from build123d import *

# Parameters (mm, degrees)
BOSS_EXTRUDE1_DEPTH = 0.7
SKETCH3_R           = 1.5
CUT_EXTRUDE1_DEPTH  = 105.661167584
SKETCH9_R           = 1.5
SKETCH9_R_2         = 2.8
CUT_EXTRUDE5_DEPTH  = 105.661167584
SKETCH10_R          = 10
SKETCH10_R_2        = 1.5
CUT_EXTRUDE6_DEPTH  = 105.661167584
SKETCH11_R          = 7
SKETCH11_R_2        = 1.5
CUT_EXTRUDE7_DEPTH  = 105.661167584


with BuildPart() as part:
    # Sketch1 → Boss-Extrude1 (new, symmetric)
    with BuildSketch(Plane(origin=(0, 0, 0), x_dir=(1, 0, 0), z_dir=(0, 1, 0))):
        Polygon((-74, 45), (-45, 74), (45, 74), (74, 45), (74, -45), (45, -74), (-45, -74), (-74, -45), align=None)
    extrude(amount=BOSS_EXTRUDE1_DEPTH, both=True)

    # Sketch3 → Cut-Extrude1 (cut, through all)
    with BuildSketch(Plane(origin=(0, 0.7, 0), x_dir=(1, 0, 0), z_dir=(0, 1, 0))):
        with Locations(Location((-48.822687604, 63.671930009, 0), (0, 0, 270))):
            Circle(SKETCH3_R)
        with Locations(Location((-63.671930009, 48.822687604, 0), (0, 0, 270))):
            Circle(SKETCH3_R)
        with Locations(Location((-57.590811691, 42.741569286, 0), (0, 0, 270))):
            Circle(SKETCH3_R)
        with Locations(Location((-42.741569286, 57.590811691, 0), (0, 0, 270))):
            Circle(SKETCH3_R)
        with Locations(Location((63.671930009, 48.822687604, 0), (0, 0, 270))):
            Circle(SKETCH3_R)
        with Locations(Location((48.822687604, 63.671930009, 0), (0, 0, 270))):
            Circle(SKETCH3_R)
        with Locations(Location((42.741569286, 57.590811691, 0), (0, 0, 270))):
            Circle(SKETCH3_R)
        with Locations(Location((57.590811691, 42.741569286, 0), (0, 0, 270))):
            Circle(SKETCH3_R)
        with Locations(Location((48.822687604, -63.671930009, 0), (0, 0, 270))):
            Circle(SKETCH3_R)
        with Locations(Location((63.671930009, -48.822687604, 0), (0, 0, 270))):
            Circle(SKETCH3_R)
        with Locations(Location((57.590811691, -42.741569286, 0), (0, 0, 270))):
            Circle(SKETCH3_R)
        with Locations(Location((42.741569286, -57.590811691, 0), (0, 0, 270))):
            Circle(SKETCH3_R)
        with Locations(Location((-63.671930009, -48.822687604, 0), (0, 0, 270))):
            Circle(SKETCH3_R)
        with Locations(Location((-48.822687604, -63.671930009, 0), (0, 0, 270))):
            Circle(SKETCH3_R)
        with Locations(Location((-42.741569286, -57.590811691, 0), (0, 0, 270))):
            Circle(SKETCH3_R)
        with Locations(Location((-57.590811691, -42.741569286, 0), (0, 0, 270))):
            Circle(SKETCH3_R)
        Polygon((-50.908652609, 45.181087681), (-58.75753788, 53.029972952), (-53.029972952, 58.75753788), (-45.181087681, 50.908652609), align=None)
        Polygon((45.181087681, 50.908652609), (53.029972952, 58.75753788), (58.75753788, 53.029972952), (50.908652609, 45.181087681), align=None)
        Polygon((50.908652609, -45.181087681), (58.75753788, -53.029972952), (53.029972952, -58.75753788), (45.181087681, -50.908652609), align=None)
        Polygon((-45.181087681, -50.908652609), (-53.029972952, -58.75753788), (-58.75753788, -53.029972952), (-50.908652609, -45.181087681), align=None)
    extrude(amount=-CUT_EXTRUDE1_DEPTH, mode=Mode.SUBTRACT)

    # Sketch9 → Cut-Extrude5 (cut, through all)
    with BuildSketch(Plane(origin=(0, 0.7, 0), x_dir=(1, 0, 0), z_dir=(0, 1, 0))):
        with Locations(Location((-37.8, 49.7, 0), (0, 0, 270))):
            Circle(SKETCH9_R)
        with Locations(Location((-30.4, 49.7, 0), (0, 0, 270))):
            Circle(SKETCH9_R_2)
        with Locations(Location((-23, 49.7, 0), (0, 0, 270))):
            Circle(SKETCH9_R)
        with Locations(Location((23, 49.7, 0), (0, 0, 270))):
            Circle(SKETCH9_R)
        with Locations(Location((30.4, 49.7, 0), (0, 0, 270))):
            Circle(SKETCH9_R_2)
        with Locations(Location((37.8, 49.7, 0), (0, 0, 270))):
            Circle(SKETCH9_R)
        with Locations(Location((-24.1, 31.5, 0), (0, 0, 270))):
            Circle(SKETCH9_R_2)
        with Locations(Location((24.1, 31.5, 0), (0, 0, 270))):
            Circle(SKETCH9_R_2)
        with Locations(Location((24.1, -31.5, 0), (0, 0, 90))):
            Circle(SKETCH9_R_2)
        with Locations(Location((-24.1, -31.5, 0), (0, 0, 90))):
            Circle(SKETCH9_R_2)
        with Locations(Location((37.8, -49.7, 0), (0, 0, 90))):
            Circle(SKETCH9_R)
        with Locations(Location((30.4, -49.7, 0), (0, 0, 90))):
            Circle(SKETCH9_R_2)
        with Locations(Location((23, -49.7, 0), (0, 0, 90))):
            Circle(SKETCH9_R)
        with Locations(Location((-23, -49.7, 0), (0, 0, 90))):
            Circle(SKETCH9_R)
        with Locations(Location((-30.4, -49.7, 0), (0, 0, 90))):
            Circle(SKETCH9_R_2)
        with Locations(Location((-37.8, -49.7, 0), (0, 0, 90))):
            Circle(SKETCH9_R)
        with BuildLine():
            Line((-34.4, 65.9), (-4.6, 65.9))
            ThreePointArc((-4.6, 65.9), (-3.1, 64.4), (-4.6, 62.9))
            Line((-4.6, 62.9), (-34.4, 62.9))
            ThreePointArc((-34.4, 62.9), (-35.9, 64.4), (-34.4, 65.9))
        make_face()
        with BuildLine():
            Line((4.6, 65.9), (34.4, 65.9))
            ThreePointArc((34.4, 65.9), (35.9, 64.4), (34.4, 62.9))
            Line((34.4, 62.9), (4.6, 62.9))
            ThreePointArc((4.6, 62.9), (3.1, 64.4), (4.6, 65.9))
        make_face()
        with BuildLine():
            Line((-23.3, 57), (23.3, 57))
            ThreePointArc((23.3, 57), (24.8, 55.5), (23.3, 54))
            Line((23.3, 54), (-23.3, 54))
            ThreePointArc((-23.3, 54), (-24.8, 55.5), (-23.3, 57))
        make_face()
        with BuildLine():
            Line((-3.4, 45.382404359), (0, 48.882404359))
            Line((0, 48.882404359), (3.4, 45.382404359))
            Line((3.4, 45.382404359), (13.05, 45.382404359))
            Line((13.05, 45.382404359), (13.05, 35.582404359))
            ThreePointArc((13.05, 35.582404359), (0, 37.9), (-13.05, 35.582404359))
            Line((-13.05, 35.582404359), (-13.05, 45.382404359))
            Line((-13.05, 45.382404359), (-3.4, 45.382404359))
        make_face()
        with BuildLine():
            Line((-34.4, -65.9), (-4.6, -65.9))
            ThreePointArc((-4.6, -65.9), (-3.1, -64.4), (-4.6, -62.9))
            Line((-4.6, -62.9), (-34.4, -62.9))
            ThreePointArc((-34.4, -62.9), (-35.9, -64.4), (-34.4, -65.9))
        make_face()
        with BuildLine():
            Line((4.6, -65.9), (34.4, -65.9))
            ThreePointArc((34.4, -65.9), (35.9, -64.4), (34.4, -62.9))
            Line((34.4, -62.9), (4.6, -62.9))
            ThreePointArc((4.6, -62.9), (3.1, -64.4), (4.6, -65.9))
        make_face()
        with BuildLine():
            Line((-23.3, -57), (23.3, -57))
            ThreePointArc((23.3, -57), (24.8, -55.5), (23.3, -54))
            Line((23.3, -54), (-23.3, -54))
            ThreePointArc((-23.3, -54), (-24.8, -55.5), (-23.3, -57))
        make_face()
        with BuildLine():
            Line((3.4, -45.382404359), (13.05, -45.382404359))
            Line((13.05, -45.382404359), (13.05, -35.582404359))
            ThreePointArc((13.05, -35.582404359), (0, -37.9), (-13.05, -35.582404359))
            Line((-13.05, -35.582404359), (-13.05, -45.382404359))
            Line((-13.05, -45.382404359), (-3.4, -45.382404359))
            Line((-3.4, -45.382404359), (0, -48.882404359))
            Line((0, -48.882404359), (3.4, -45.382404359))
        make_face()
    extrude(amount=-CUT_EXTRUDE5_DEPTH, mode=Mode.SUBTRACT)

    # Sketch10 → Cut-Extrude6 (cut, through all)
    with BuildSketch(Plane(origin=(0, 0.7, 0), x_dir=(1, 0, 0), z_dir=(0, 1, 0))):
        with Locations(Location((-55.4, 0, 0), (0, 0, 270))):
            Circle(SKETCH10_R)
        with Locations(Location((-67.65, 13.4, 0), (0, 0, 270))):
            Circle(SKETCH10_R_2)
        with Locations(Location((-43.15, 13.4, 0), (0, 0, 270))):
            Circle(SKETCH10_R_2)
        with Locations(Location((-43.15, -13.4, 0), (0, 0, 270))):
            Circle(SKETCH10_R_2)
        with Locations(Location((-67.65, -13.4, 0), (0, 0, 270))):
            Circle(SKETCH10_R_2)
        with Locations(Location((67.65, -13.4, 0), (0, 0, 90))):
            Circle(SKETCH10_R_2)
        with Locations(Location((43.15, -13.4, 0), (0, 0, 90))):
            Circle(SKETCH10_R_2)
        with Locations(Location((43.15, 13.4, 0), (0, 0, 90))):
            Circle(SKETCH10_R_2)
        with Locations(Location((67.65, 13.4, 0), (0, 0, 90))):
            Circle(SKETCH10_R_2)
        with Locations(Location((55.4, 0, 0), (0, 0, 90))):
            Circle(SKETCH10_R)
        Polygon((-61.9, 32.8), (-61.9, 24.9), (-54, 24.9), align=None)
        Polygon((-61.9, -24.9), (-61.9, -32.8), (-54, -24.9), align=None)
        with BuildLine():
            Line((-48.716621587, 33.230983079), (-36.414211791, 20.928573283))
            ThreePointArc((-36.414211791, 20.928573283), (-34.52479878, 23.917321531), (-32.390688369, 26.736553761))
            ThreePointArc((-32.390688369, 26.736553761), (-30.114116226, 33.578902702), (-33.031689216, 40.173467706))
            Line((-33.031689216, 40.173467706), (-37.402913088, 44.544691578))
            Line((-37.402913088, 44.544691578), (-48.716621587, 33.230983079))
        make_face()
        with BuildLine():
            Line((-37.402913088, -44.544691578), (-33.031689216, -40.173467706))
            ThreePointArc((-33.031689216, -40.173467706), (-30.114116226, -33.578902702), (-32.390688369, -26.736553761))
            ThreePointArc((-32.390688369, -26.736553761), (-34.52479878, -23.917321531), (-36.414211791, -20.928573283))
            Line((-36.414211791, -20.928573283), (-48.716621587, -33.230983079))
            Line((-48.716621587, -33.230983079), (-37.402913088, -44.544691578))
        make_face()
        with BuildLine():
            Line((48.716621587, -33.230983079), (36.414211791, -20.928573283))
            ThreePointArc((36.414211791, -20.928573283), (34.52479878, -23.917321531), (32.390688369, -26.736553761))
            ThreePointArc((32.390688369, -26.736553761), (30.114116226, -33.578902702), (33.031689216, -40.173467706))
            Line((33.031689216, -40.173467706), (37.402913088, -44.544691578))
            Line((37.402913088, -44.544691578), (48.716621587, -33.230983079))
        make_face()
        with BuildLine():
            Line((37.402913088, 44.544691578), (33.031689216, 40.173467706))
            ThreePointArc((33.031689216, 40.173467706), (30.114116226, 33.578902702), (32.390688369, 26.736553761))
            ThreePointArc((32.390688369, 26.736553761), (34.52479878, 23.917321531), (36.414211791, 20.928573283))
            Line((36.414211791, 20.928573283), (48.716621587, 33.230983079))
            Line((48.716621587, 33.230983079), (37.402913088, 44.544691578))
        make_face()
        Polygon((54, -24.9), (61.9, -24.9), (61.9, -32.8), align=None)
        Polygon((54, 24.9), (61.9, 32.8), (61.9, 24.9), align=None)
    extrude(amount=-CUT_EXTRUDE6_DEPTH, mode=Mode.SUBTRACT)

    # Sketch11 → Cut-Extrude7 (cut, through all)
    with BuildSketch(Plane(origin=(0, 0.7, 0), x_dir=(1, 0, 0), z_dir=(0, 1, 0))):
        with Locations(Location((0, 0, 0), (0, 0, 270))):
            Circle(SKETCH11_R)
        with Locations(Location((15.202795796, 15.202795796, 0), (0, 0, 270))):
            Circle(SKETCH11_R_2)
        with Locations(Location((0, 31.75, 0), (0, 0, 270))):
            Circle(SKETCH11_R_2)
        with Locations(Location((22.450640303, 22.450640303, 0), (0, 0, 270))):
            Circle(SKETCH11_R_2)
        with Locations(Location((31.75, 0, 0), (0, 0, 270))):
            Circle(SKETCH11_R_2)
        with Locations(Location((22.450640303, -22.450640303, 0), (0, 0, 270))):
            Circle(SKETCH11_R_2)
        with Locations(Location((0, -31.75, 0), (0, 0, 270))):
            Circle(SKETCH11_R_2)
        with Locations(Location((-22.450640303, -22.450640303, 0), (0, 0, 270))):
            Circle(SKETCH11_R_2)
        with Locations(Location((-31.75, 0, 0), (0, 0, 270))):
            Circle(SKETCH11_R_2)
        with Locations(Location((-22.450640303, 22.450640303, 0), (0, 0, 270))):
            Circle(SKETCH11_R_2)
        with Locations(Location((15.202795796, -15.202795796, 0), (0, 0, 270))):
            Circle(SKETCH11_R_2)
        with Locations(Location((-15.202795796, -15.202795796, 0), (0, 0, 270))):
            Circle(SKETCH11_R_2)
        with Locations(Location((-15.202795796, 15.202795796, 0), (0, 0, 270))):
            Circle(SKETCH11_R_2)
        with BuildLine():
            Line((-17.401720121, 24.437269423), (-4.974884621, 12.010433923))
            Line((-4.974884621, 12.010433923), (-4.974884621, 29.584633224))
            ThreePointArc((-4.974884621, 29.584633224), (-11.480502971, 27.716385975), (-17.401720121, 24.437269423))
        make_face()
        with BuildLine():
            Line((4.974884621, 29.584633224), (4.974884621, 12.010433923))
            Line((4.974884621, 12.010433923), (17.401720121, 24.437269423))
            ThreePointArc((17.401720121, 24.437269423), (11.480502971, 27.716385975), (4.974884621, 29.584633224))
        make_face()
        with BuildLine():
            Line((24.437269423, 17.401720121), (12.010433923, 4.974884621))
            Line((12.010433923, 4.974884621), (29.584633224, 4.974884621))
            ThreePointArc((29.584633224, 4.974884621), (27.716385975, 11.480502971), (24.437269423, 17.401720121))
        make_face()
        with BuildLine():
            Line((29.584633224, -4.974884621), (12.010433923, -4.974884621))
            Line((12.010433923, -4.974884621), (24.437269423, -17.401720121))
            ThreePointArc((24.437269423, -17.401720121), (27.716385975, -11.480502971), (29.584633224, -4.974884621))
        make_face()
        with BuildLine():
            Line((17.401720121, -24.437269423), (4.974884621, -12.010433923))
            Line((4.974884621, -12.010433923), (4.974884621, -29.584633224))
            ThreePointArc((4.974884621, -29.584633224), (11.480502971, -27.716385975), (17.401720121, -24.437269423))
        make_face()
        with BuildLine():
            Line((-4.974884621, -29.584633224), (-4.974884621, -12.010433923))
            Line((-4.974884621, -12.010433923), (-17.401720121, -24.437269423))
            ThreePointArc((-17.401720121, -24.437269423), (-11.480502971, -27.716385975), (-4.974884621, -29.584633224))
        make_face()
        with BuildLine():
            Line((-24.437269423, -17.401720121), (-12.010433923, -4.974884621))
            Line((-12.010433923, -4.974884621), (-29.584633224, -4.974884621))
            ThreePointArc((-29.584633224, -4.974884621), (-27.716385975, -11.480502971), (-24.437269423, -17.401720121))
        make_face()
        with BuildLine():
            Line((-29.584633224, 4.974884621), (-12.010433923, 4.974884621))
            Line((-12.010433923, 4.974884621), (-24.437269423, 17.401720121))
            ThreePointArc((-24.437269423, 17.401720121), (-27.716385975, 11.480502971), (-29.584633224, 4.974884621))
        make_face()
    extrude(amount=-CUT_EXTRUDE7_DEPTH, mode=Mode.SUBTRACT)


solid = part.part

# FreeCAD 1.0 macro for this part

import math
import FreeCAD as App
import Part
import Sketcher

V = App.Vector


def add_polygon(sketch, points):
    """Adds a closed chain of lines whose ends are joined by coincident constraints."""
    first, n = sketch.GeometryCount, len(points)
    for a, b in zip(points, points[1:] + points[:1]):
        sketch.addGeometry(Part.LineSegment(App.Vector(*a, 0), App.Vector(*b, 0)), False)
    for i in range(n):
        sketch.addConstraint(Sketcher.Constraint("Coincident", first + i, 2, first + (i + 1) % n, 1))

doc = App.newDocument("Part")
body = doc.addObject("PartDesign::Body", "Body")

# Sketch on XZ plane
sketch1 = body.newObject("Sketcher::SketchObject", "Sketch")
sketch1.AttachmentSupport = (doc.getObject("XZ_Plane"), [""])
sketch1.MapMode = "FlatFace"
add_polygon(sketch1, [(-45, -74), (-74, -45), (-74, 45), (-45, 74), (45, 74), (74, 45), (74, -45), (45, -74)])  # lines 0-7
sketch1.addConstraint([
    Sketcher.Constraint("Vertical", 1),
    Sketcher.Constraint("Horizontal", 3),
    Sketcher.Constraint("Vertical", 5),
    Sketcher.Constraint("Horizontal", 7),
    Sketcher.Constraint("Symmetric", 0, 2, 4, 2, -1, 1),
    Sketcher.Constraint("Symmetric", 2, 2, 6, 2, -1, 1),
    Sketcher.Constraint("Perpendicular", 0, 2),
    Sketcher.Constraint("Perpendicular", 2, 4),
    Sketcher.Constraint("Perpendicular", 4, 6),
    Sketcher.Constraint("Horizontal", 1, 2, 4, 2),
    Sketcher.Constraint("Vertical", 3, 2, 6, 2),
    Sketcher.Constraint("Equal", 7, 1),
    Sketcher.Constraint("DistanceX", 3, 1, 3, 2, 90.0),
    Sketcher.Constraint("DistanceX", 0, 2, -1, 1, 74.0),
])
pad1 = body.newObject("PartDesign::Pad", "Pad")
pad1.Profile = sketch1
pad1.Length = 1.4
pad1.Midplane = True

# Sketch on XZ plane
sketch2 = body.newObject("Sketcher::SketchObject", "Sketch001")
sketch2.AttachmentSupport = (doc.getObject("XZ_Plane"), [""])
sketch2.MapMode = "FlatFace"
sketch2.AttachmentOffset = App.Placement(V(0, 0, -0.7), App.Rotation())
sketch2.addGeometry(Part.Circle(V(-48.822688, -63.67193, 0), V(0, 0, 1), 1.5), False)  # 0
sketch2.addGeometry(Part.Circle(V(-63.67193, -48.822688, 0), V(0, 0, 1), 1.5), False)  # 1
sketch2.addGeometry(Part.Circle(V(-57.590812, -42.741569, 0), V(0, 0, 1), 1.5), False)  # 2
sketch2.addGeometry(Part.Circle(V(-42.741569, -57.590812, 0), V(0, 0, 1), 1.5), False)  # 3
sketch2.addGeometry(Part.Circle(V(63.67193, -48.822688, 0), V(0, 0, 1), 1.5), False)  # 4
sketch2.addGeometry(Part.Circle(V(48.822688, -63.67193, 0), V(0, 0, 1), 1.5), False)  # 5
sketch2.addGeometry(Part.Circle(V(42.741569, -57.590812, 0), V(0, 0, 1), 1.5), False)  # 6
sketch2.addGeometry(Part.Circle(V(57.590812, -42.741569, 0), V(0, 0, 1), 1.5), False)  # 7
sketch2.addGeometry(Part.Circle(V(48.822688, 63.67193, 0), V(0, 0, 1), 1.5), False)  # 8
sketch2.addGeometry(Part.Circle(V(63.67193, 48.822688, 0), V(0, 0, 1), 1.5), False)  # 9
sketch2.addGeometry(Part.Circle(V(57.590812, 42.741569, 0), V(0, 0, 1), 1.5), False)  # 10
sketch2.addGeometry(Part.Circle(V(42.741569, 57.590812, 0), V(0, 0, 1), 1.5), False)  # 11
sketch2.addGeometry(Part.Circle(V(-63.67193, 48.822688, 0), V(0, 0, 1), 1.5), False)  # 12
sketch2.addGeometry(Part.Circle(V(-48.822688, 63.67193, 0), V(0, 0, 1), 1.5), False)  # 13
sketch2.addGeometry(Part.Circle(V(-42.741569, 57.590812, 0), V(0, 0, 1), 1.5), False)  # 14
sketch2.addGeometry(Part.Circle(V(-57.590812, 42.741569, 0), V(0, 0, 1), 1.5), False)  # 15
add_polygon(sketch2, [(-58.757538, -53.029973), (-50.908653, -45.181088), (-45.181088, -50.908653), (-53.029973, -58.757538)])  # lines 16-19
add_polygon(sketch2, [(53.029973, -58.757538), (45.181088, -50.908653), (50.908653, -45.181088), (58.757538, -53.029973)])  # lines 20-23
add_polygon(sketch2, [(58.757538, 53.029973), (50.908653, 45.181088), (45.181088, 50.908653), (53.029973, 58.757538)])  # lines 24-27
add_polygon(sketch2, [(-53.029973, 58.757538), (-45.181088, 50.908653), (-50.908653, 45.181088), (-58.757538, 53.029973)])  # lines 28-31
sketch2.addConstraint([
    Sketcher.Constraint("Equal", 0, 1),
    Sketcher.Constraint("Equal", 1, 2),
    Sketcher.Constraint("Equal", 2, 3),
    Sketcher.Constraint("Equal", 3, 4),
    Sketcher.Constraint("Equal", 4, 5),
    Sketcher.Constraint("Equal", 5, 6),
    Sketcher.Constraint("Equal", 6, 7),
    Sketcher.Constraint("Equal", 7, 8),
    Sketcher.Constraint("Equal", 8, 9),
    Sketcher.Constraint("Equal", 9, 10),
    Sketcher.Constraint("Equal", 10, 11),
    Sketcher.Constraint("Equal", 11, 12),
    Sketcher.Constraint("Equal", 12, 13),
    Sketcher.Constraint("Equal", 13, 14),
    Sketcher.Constraint("Equal", 14, 15),
    Sketcher.Constraint("Symmetric", 0, 3, 8, 3, -1, 1),
    Sketcher.Constraint("Symmetric", 1, 3, 9, 3, -1, 1),
    Sketcher.Constraint("Symmetric", 2, 3, 10, 3, -1, 1),
    Sketcher.Constraint("Symmetric", 3, 3, 11, 3, -1, 1),
    Sketcher.Constraint("Symmetric", 4, 3, 12, 3, -1, 1),
    Sketcher.Constraint("Symmetric", 5, 3, 13, 3, -1, 1),
    Sketcher.Constraint("Symmetric", 6, 3, 14, 3, -1, 1),
    Sketcher.Constraint("Symmetric", 7, 3, 15, 3, -1, 1),
    Sketcher.Constraint("Symmetric", 16, 2, 24, 2, -1, 1),
    Sketcher.Constraint("Symmetric", 17, 2, 25, 2, -1, 1),
    Sketcher.Constraint("Symmetric", 18, 2, 26, 2, -1, 1),
    Sketcher.Constraint("Symmetric", 19, 2, 27, 2, -1, 1),
    Sketcher.Constraint("Symmetric", 20, 2, 28, 2, -1, 1),
    Sketcher.Constraint("Symmetric", 21, 2, 29, 2, -1, 1),
    Sketcher.Constraint("Symmetric", 22, 2, 30, 2, -1, 1),
    Sketcher.Constraint("Symmetric", 23, 2, 31, 2, -1, 1),
    Sketcher.Constraint("Symmetric", 1, 3, 4, 3, -2),
    Sketcher.Constraint("Symmetric", 0, 3, 5, 3, -2),
    Sketcher.Constraint("Symmetric", 3, 3, 6, 3, -2),
    Sketcher.Constraint("Symmetric", 2, 3, 7, 3, -2),
    Sketcher.Constraint("Symmetric", 17, 2, 20, 2, -2),
    Sketcher.Constraint("Symmetric", 16, 2, 21, 2, -2),
    Sketcher.Constraint("Symmetric", 19, 2, 22, 2, -2),
    Sketcher.Constraint("Symmetric", 18, 2, 23, 2, -2),
    Sketcher.Constraint("Perpendicular", 16, 17),
    Sketcher.Constraint("Perpendicular", 17, 18),
    Sketcher.Constraint("Perpendicular", 18, 19),
    Sketcher.Constraint("Parallel", 19, 20),
    Sketcher.Constraint("Diameter", 0, 3.0),
    Sketcher.Constraint("Distance", 16, 11.1),
    Sketcher.Constraint("Distance", 17, 8.1),
    Sketcher.Constraint("DistanceX", 3, 3, 4, 3, 106.413499),
    Sketcher.Constraint("DistanceX", 2, 3, 5, 3, 106.413499),
    Sketcher.Constraint("DistanceY", 7, 3, 8, 3, 106.413499),
    Sketcher.Constraint("DistanceY", 6, 3, 9, 3, 106.413499),
    Sketcher.Constraint("DistanceY", 1, 3, 16, 2, 3.6416),
    Sketcher.Constraint("DistanceX", 0, 3, 17, 2, 3.6416),
    Sketcher.Constraint("DistanceY", 0, 3, -1, 1, 63.67193),
    Sketcher.Constraint("DistanceX", 1, 3, -1, 1, 63.67193),
    Sketcher.Constraint("DistanceX", 2, 3, -1, 1, 57.590812),
    Sketcher.Constraint("DistanceY", 3, 3, -1, 1, 57.590812),
])
pocket1 = body.newObject("PartDesign::Pocket", "Pocket")
pocket1.Profile = sketch2
pocket1.Type = "ThroughAll"
pocket1.Reversed = True

# Sketch on XZ plane
sketch3 = body.newObject("Sketcher::SketchObject", "Sketch002")
sketch3.AttachmentSupport = (doc.getObject("XZ_Plane"), [""])
sketch3.MapMode = "FlatFace"
sketch3.AttachmentOffset = App.Placement(V(0, 0, -0.7), App.Rotation())
sketch3.addGeometry([
    Part.Circle(V(-37.8, -49.7, 0), V(0, 0, 1), 1.5),  # 0
    Part.Circle(V(-30.4, -49.7, 0), V(0, 0, 1), 2.8),  # 1
    Part.Circle(V(-23, -49.7, 0), V(0, 0, 1), 1.5),  # 2
    Part.Circle(V(23, -49.7, 0), V(0, 0, 1), 1.5),  # 3
    Part.Circle(V(30.4, -49.7, 0), V(0, 0, 1), 2.8),  # 4
    Part.Circle(V(37.8, -49.7, 0), V(0, 0, 1), 1.5),  # 5
    Part.Circle(V(-24.1, -31.5, 0), V(0, 0, 1), 2.8),  # 6
    Part.Circle(V(24.1, -31.5, 0), V(0, 0, 1), 2.8),  # 7
    Part.Circle(V(24.1, 31.5, 0), V(0, 0, 1), 2.8),  # 8
    Part.Circle(V(-24.1, 31.5, 0), V(0, 0, 1), 2.8),  # 9
    Part.Circle(V(37.8, 49.7, 0), V(0, 0, 1), 1.5),  # 10
    Part.Circle(V(30.4, 49.7, 0), V(0, 0, 1), 2.8),  # 11
    Part.Circle(V(23, 49.7, 0), V(0, 0, 1), 1.5),  # 12
    Part.Circle(V(-23, 49.7, 0), V(0, 0, 1), 1.5),  # 13
    Part.Circle(V(-30.4, 49.7, 0), V(0, 0, 1), 2.8),  # 14
    Part.Circle(V(-37.8, 49.7, 0), V(0, 0, 1), 1.5),  # 15
    Part.LineSegment(V(-4.6, -65.9, 0), V(-34.4, -65.9, 0)),  # 16
    Part.ArcOfCircle(Part.Circle(V(-34.4, -64.4, 0), V(0, 0, 1), 1.5), math.radians(90), math.radians(270)),  # 17
    Part.LineSegment(V(-34.4, -62.9, 0), V(-4.6, -62.9, 0)),  # 18
    Part.ArcOfCircle(Part.Circle(V(-4.6, -64.4, 0), V(0, 0, 1), 1.5), math.radians(-90), math.radians(90)),  # 19
    Part.LineSegment(V(34.4, -65.9, 0), V(4.6, -65.9, 0)),  # 20
    Part.ArcOfCircle(Part.Circle(V(4.6, -64.4, 0), V(0, 0, 1), 1.5), math.radians(90), math.radians(270)),  # 21
    Part.LineSegment(V(4.6, -62.9, 0), V(34.4, -62.9, 0)),  # 22
    Part.ArcOfCircle(Part.Circle(V(34.4, -64.4, 0), V(0, 0, 1), 1.5), math.radians(-90), math.radians(90)),  # 23
    Part.LineSegment(V(23.3, -57, 0), V(-23.3, -57, 0)),  # 24
    Part.ArcOfCircle(Part.Circle(V(-23.3, -55.5, 0), V(0, 0, 1), 1.5), math.radians(90), math.radians(270)),  # 25
    Part.LineSegment(V(-23.3, -54, 0), V(23.3, -54, 0)),  # 26
    Part.ArcOfCircle(Part.Circle(V(23.3, -55.5, 0), V(0, 0, 1), 1.5), math.radians(-90), math.radians(90)),  # 27
    Part.LineSegment(V(0, -48.882404, 0), V(-3.4, -45.382404, 0)),  # 28
    Part.LineSegment(V(-3.4, -45.382404, 0), V(-13.05, -45.382404, 0)),  # 29
    Part.LineSegment(V(-13.05, -45.382404, 0), V(-13.05, -35.582404, 0)),  # 30
    Part.ArcOfCircle(Part.Circle(V(0, 0, 0), V(0, 0, 1), 37.9), math.radians(-110.14073), math.radians(-69.85927)),  # 31
    Part.LineSegment(V(13.05, -35.582404, 0), V(13.05, -45.382404, 0)),  # 32
    Part.LineSegment(V(13.05, -45.382404, 0), V(3.4, -45.382404, 0)),  # 33
    Part.LineSegment(V(3.4, -45.382404, 0), V(0, -48.882404, 0)),  # 34
    Part.LineSegment(V(-34.4, 65.9, 0), V(-4.6, 65.9, 0)),  # 35
    Part.ArcOfCircle(Part.Circle(V(-4.6, 64.4, 0), V(0, 0, 1), 1.5), math.radians(-90), math.radians(90)),  # 36
    Part.LineSegment(V(-4.6, 62.9, 0), V(-34.4, 62.9, 0)),  # 37
    Part.ArcOfCircle(Part.Circle(V(-34.4, 64.4, 0), V(0, 0, 1), 1.5), math.radians(90), math.radians(270)),  # 38
    Part.LineSegment(V(4.6, 65.9, 0), V(34.4, 65.9, 0)),  # 39
    Part.ArcOfCircle(Part.Circle(V(34.4, 64.4, 0), V(0, 0, 1), 1.5), math.radians(-90), math.radians(90)),  # 40
    Part.LineSegment(V(34.4, 62.9, 0), V(4.6, 62.9, 0)),  # 41
    Part.ArcOfCircle(Part.Circle(V(4.6, 64.4, 0), V(0, 0, 1), 1.5), math.radians(90), math.radians(270)),  # 42
    Part.LineSegment(V(-23.3, 57, 0), V(23.3, 57, 0)),  # 43
    Part.ArcOfCircle(Part.Circle(V(23.3, 55.5, 0), V(0, 0, 1), 1.5), math.radians(-90), math.radians(90)),  # 44
    Part.LineSegment(V(23.3, 54, 0), V(-23.3, 54, 0)),  # 45
    Part.ArcOfCircle(Part.Circle(V(-23.3, 55.5, 0), V(0, 0, 1), 1.5), math.radians(90), math.radians(270)),  # 46
    Part.LineSegment(V(3.4, 45.382404, 0), V(13.05, 45.382404, 0)),  # 47
    Part.LineSegment(V(13.05, 45.382404, 0), V(13.05, 35.582404, 0)),  # 48
    Part.ArcOfCircle(Part.Circle(V(0, 0, 0), V(0, 0, 1), 37.9), math.radians(69.85927), math.radians(110.14073)),  # 49
    Part.LineSegment(V(-13.05, 35.582404, 0), V(-13.05, 45.382404, 0)),  # 50
    Part.LineSegment(V(-13.05, 45.382404, 0), V(-3.4, 45.382404, 0)),  # 51
    Part.LineSegment(V(-3.4, 45.382404, 0), V(0, 48.882404, 0)),  # 52
    Part.LineSegment(V(0, 48.882404, 0), V(3.4, 45.382404, 0)),  # 53
], False)
sketch3.addConstraint([
    Sketcher.Constraint("Tangent", 16, 2, 17, 2),
    Sketcher.Constraint("Tangent", 17, 1, 18, 1),
    Sketcher.Constraint("Tangent", 18, 2, 19, 2),
    Sketcher.Constraint("Tangent", 19, 1, 16, 1),
    Sketcher.Constraint("Tangent", 20, 2, 21, 2),
    Sketcher.Constraint("Tangent", 21, 1, 22, 1),
    Sketcher.Constraint("Tangent", 22, 2, 23, 2),
    Sketcher.Constraint("Tangent", 23, 1, 20, 1),
    Sketcher.Constraint("Tangent", 24, 2, 25, 2),
    Sketcher.Constraint("Tangent", 25, 1, 26, 1),
    Sketcher.Constraint("Tangent", 26, 2, 27, 2),
    Sketcher.Constraint("Tangent", 27, 1, 24, 1),
    Sketcher.Constraint("Coincident", 28, 2, 29, 1),
    Sketcher.Constraint("Coincident", 29, 2, 30, 1),
    Sketcher.Constraint("Coincident", 30, 2, 31, 1),
    Sketcher.Constraint("Coincident", 31, 2, 32, 1),
    Sketcher.Constraint("Coincident", 32, 2, 33, 1),
    Sketcher.Constraint("Coincident", 33, 2, 34, 1),
    Sketcher.Constraint("Coincident", 34, 2, 28, 1),
    Sketcher.Constraint("Tangent", 35, 2, 36, 2),
    Sketcher.Constraint("Tangent", 36, 1, 37, 1),
    Sketcher.Constraint("Tangent", 37, 2, 38, 2),
    Sketcher.Constraint("Tangent", 38, 1, 35, 1),
    Sketcher.Constraint("Tangent", 39, 2, 40, 2),
    Sketcher.Constraint("Tangent", 40, 1, 41, 1),
    Sketcher.Constraint("Tangent", 41, 2, 42, 2),
    Sketcher.Constraint("Tangent", 42, 1, 39, 1),
    Sketcher.Constraint("Tangent", 43, 2, 44, 2),
    Sketcher.Constraint("Tangent", 44, 1, 45, 1),
    Sketcher.Constraint("Tangent", 45, 2, 46, 2),
    Sketcher.Constraint("Tangent", 46, 1, 43, 1),
    Sketcher.Constraint("Coincident", 47, 2, 48, 1),
    Sketcher.Constraint("Coincident", 48, 2, 49, 1),
    Sketcher.Constraint("Coincident", 49, 2, 50, 1),
    Sketcher.Constraint("Coincident", 50, 2, 51, 1),
    Sketcher.Constraint("Coincident", 51, 2, 52, 1),
    Sketcher.Constraint("Coincident", 52, 2, 53, 1),
    Sketcher.Constraint("Coincident", 53, 2, 47, 1),
    Sketcher.Constraint("Horizontal", 16),
    Sketcher.Constraint("Horizontal", 18),
    Sketcher.Constraint("Horizontal", 20),
    Sketcher.Constraint("Horizontal", 22),
    Sketcher.Constraint("Horizontal", 24),
    Sketcher.Constraint("Horizontal", 26),
    Sketcher.Constraint("Horizontal", 29),
    Sketcher.Constraint("Vertical", 30),
    Sketcher.Constraint("Vertical", 32),
    Sketcher.Constraint("Horizontal", 33),
    Sketcher.Constraint("Horizontal", 35),
    Sketcher.Constraint("Horizontal", 37),
    Sketcher.Constraint("Horizontal", 39),
    Sketcher.Constraint("Horizontal", 41),
    Sketcher.Constraint("Horizontal", 43),
    Sketcher.Constraint("Horizontal", 45),
    Sketcher.Constraint("Horizontal", 47),
    Sketcher.Constraint("Vertical", 48),
    Sketcher.Constraint("Vertical", 50),
    Sketcher.Constraint("Horizontal", 51),
    Sketcher.Constraint("Coincident", 31, 3, -1, 1),
    Sketcher.Constraint("Coincident", 49, 3, -1, 1),
    Sketcher.Constraint("Equal", 0, 2),
    Sketcher.Constraint("Equal", 2, 3),
    Sketcher.Constraint("Equal", 1, 4),
    Sketcher.Constraint("Equal", 3, 5),
    Sketcher.Constraint("Equal", 4, 6),
    Sketcher.Constraint("Equal", 6, 7),
    Sketcher.Constraint("Equal", 7, 8),
    Sketcher.Constraint("Equal", 8, 9),
    Sketcher.Constraint("Equal", 5, 10),
    Sketcher.Constraint("Equal", 9, 11),
    Sketcher.Constraint("Equal", 10, 12),
    Sketcher.Constraint("Equal", 12, 13),
    Sketcher.Constraint("Equal", 11, 14),
    Sketcher.Constraint("Equal", 13, 15),
    Sketcher.Constraint("Equal", 15, 17),
    Sketcher.Constraint("Equal", 19, 21),
    Sketcher.Constraint("Equal", 23, 25),
    Sketcher.Constraint("Equal", 27, 36),
    Sketcher.Constraint("Equal", 38, 40),
    Sketcher.Constraint("Equal", 42, 44),
    Sketcher.Constraint("Equal", 31, 49),
    Sketcher.Constraint("Symmetric", 6, 3, 8, 3, -1, 1),
    Sketcher.Constraint("Symmetric", 7, 3, 9, 3, -1, 1),
    Sketcher.Constraint("Symmetric", 0, 3, 10, 3, -1, 1),
    Sketcher.Constraint("Symmetric", 1, 3, 11, 3, -1, 1),
    Sketcher.Constraint("Symmetric", 2, 3, 12, 3, -1, 1),
    Sketcher.Constraint("Symmetric", 3, 3, 13, 3, -1, 1),
    Sketcher.Constraint("Symmetric", 4, 3, 14, 3, -1, 1),
    Sketcher.Constraint("Symmetric", 5, 3, 15, 3, -1, 1),
    Sketcher.Constraint("Symmetric", 21, 3, 36, 3, -1, 1),
    Sketcher.Constraint("Symmetric", 17, 3, 40, 3, -1, 1),
    Sketcher.Constraint("Symmetric", 25, 3, 44, 3, -1, 1),
    Sketcher.Constraint("Symmetric", 29, 2, 47, 2, -1, 1),
    Sketcher.Constraint("Symmetric", 32, 2, 50, 2, -1, 1),
    Sketcher.Constraint("Symmetric", 34, 2, 52, 2, -1, 1),
    Sketcher.Constraint("Symmetric", 2, 3, 3, 3, -2),
    Sketcher.Constraint("Symmetric", 1, 3, 4, 3, -2),
    Sketcher.Constraint("Symmetric", 0, 3, 5, 3, -2),
    Sketcher.Constraint("Symmetric", 6, 3, 7, 3, -2),
    Sketcher.Constraint("Symmetric", 19, 3, 21, 3, -2),
    Sketcher.Constraint("Symmetric", 29, 2, 32, 2, -2),
    Sketcher.Constraint("PointOnObject", 34, 2, -2),
    Sketcher.Constraint("Parallel", 34, 52),
    Sketcher.Constraint("Parallel", 28, 53),
    Sketcher.Constraint("Horizontal", 0, 3, 1, 3),
    Sketcher.Constraint("Horizontal", 1, 3, 2, 3),
    Sketcher.Constraint("Vertical", 17, 3, 38, 3),
    Sketcher.Constraint("Vertical", 23, 3, 40, 3),
    Sketcher.Constraint("Vertical", 21, 3, 42, 3),
    Sketcher.Constraint("Vertical", 27, 3, 44, 3),
    Sketcher.Constraint("Vertical", 25, 3, 46, 3),
    Sketcher.Constraint("Vertical", 28, 2, 51, 2),
    Sketcher.Constraint("Diameter", 0, 3.0),
    Sketcher.Constraint("Diameter", 1, 5.6),
    Sketcher.Constraint("Radius", 31, 37.9),
    Sketcher.Constraint("DistanceX", 16, 2, 16, 1, 29.8),
    Sketcher.Constraint("DistanceX", 24, 2, 24, 1, 46.6),
    Sketcher.Constraint("DistanceY", 30, 1, 30, 2, 9.8),
    Sketcher.Constraint("DistanceX", 2, 3, -1, 1, 23.0),
    Sketcher.Constraint("DistanceY", 24, 2, -1, 1, 57.0),
    Sketcher.Constraint("DistanceX", 29, 2, 29, 1, 9.65),
    Sketcher.Constraint("DistanceX", 0, 3, -1, 1, 37.8),
    Sketcher.Constraint("DistanceY", 0, 3, -1, 1, 49.7),
    Sketcher.Constraint("DistanceX", 1, 3, -1, 1, 30.4),
    Sketcher.Constraint("DistanceX", 6, 3, -1, 1, 24.1),
    Sketcher.Constraint("DistanceY", 6, 3, -1, 1, 31.5),
    Sketcher.Constraint("DistanceX", 17, 3, -1, 1, 34.4),
    Sketcher.Constraint("DistanceY", 17, 3, -1, 1, 64.4),
    Sketcher.Constraint("DistanceX", 28, 2, -1, 1, 3.4),
    Sketcher.Constraint("Distance", 28, 4.879549),
])
pocket2 = body.newObject("PartDesign::Pocket", "Pocket001")
pocket2.Profile = sketch3
pocket2.Type = "ThroughAll"
pocket2.Reversed = True

# Sketch on XZ plane
sketch4 = body.newObject("Sketcher::SketchObject", "Sketch003")
sketch4.AttachmentSupport = (doc.getObject("XZ_Plane"), [""])
sketch4.MapMode = "FlatFace"
sketch4.AttachmentOffset = App.Placement(V(0, 0, -0.7), App.Rotation())
sketch4.addGeometry(Part.Circle(V(-55.4, 0, 0), V(0, 0, 1), 10), False)  # 0
sketch4.addGeometry(Part.Circle(V(-67.65, -13.4, 0), V(0, 0, 1), 1.5), False)  # 1
sketch4.addGeometry(Part.Circle(V(-43.15, -13.4, 0), V(0, 0, 1), 1.5), False)  # 2
sketch4.addGeometry(Part.Circle(V(-43.15, 13.4, 0), V(0, 0, 1), 1.5), False)  # 3
sketch4.addGeometry(Part.Circle(V(-67.65, 13.4, 0), V(0, 0, 1), 1.5), False)  # 4
sketch4.addGeometry(Part.Circle(V(67.65, 13.4, 0), V(0, 0, 1), 1.5), False)  # 5
sketch4.addGeometry(Part.Circle(V(43.15, 13.4, 0), V(0, 0, 1), 1.5), False)  # 6
sketch4.addGeometry(Part.Circle(V(43.15, -13.4, 0), V(0, 0, 1), 1.5), False)  # 7
sketch4.addGeometry(Part.Circle(V(67.65, -13.4, 0), V(0, 0, 1), 1.5), False)  # 8
sketch4.addGeometry(Part.Circle(V(55.4, 0, 0), V(0, 0, 1), 10), False)  # 9
add_polygon(sketch4, [(-61.9, -32.8), (-61.9, -24.9), (-54, -24.9)])  # lines 10-12
add_polygon(sketch4, [(-61.9, 24.9), (-61.9, 32.8), (-54, 24.9)])  # lines 13-15
sketch4.addGeometry(Part.LineSegment(V(-48.716622, -33.230983, 0), V(-36.414212, -20.928573, 0)), False)  # 16
sketch4.addGeometry(Part.ArcOfCircle(Part.Circle(V(0, 0, 0), V(0, 0, 1), 42), math.radians(-150.11245), math.radians(-140.462388)), False)  # 17
sketch4.addGeometry(Part.ArcOfCircle(Part.Circle(V(-40.102757, -33.1024, 0), V(0, 0, 1), 10), math.radians(-45), math.radians(39.537612)), False)  # 18
sketch4.addGeometry(Part.LineSegment(V(-33.031689, -40.173468, 0), V(-37.402913, -44.544692, 0)), False)  # 19
sketch4.addGeometry(Part.LineSegment(V(-37.402913, -44.544692, 0), V(-48.716622, -33.230983, 0)), False)  # 20
sketch4.addGeometry(Part.LineSegment(V(-37.402913, 44.544692, 0), V(-33.031689, 40.173468, 0)), False)  # 21
sketch4.addGeometry(Part.ArcOfCircle(Part.Circle(V(-40.102757, 33.1024, 0), V(0, 0, 1), 10), math.radians(-39.537612), math.radians(45)), False)  # 22
sketch4.addGeometry(Part.ArcOfCircle(Part.Circle(V(0, 0, 0), V(0, 0, 1), 42), math.radians(140.462388), math.radians(150.11245)), False)  # 23
sketch4.addGeometry(Part.LineSegment(V(-36.414212, 20.928573, 0), V(-48.716622, 33.230983, 0)), False)  # 24
sketch4.addGeometry(Part.LineSegment(V(-48.716622, 33.230983, 0), V(-37.402913, 44.544692, 0)), False)  # 25
sketch4.addGeometry(Part.LineSegment(V(48.716622, 33.230983, 0), V(36.414212, 20.928573, 0)), False)  # 26
sketch4.addGeometry(Part.ArcOfCircle(Part.Circle(V(0, 0, 0), V(0, 0, 1), 42), math.radians(29.88755), math.radians(39.537612)), False)  # 27
sketch4.addGeometry(Part.ArcOfCircle(Part.Circle(V(40.102757, 33.1024, 0), V(0, 0, 1), 10), math.radians(135), math.radians(219.537612)), False)  # 28
sketch4.addGeometry(Part.LineSegment(V(33.031689, 40.173468, 0), V(37.402913, 44.544692, 0)), False)  # 29
sketch4.addGeometry(Part.LineSegment(V(37.402913, 44.544692, 0), V(48.716622, 33.230983, 0)), False)  # 30
sketch4.addGeometry(Part.LineSegment(V(37.402913, -44.544692, 0), V(33.031689, -40.173468, 0)), False)  # 31
sketch4.addGeometry(Part.ArcOfCircle(Part.Circle(V(40.102757, -33.1024, 0), V(0, 0, 1), 10), math.radians(140.462388), math.radians(225)), False)  # 32
sketch4.addGeometry(Part.ArcOfCircle(Part.Circle(V(0, 0, 0), V(0, 0, 1), 42), math.radians(-39.537612), math.radians(-29.88755)), False)  # 33
sketch4.addGeometry(Part.LineSegment(V(36.414212, -20.928573, 0), V(48.716622, -33.230983, 0)), False)  # 34
sketch4.addGeometry(Part.LineSegment(V(48.716622, -33.230983, 0), V(37.402913, -44.544692, 0)), False)  # 35
add_polygon(sketch4, [(61.9, 24.9), (54, 24.9), (61.9, 32.8)])  # lines 36-38
add_polygon(sketch4, [(61.9, -32.8), (54, -24.9), (61.9, -24.9)])  # lines 39-41
sketch4.addConstraint([
    Sketcher.Constraint("Coincident", 16, 2, 17, 1),
    Sketcher.Constraint("Tangent", 17, 2, 18, 2),
    Sketcher.Constraint("Tangent", 18, 1, 19, 1),
    Sketcher.Constraint("Coincident", 19, 2, 20, 1),
    Sketcher.Constraint("Coincident", 20, 2, 16, 1),
    Sketcher.Constraint("Tangent", 21, 2, 22, 2),
    Sketcher.Constraint("Tangent", 22, 1, 23, 1),
    Sketcher.Constraint("Coincident", 23, 2, 24, 1),
    Sketcher.Constraint("Coincident", 24, 2, 25, 1),
    Sketcher.Constraint("Coincident", 25, 2, 21, 1),
    Sketcher.Constraint("Coincident", 26, 2, 27, 1),
    Sketcher.Constraint("Tangent", 27, 2, 28, 2),
    Sketcher.Constraint("Tangent", 28, 1, 29, 1),
    Sketcher.Constraint("Coincident", 29, 2, 30, 1),
    Sketcher.Constraint("Coincident", 30, 2, 26, 1),
    Sketcher.Constraint("Tangent", 31, 2, 32, 2),
    Sketcher.Constraint("Tangent", 32, 1, 33, 1),
    Sketcher.Constraint("Coincident", 33, 2, 34, 1),
    Sketcher.Constraint("Coincident", 34, 2, 35, 1),
    Sketcher.Constraint("Coincident", 35, 2, 31, 1),
    Sketcher.Constraint("Vertical", 10),
    Sketcher.Constraint("Horizontal", 11),
    Sketcher.Constraint("Vertical", 13),
    Sketcher.Constraint("Horizontal", 15),
    Sketcher.Constraint("Horizontal", 36),
    Sketcher.Constraint("Vertical", 38),
    Sketcher.Constraint("Horizontal", 40),
    Sketcher.Constraint("Vertical", 41),
    Sketcher.Constraint("Coincident", 17, 3, -1, 1),
    Sketcher.Constraint("Coincident", 23, 3, -1, 1),
    Sketcher.Constraint("Coincident", 27, 3, -1, 1),
    Sketcher.Constraint("Coincident", 33, 3, -1, 1),
    Sketcher.Constraint("Equal", 1, 2),
    Sketcher.Constraint("Equal", 2, 3),
    Sketcher.Constraint("Equal", 3, 4),
    Sketcher.Constraint("Equal", 4, 5),
    Sketcher.Constraint("Equal", 5, 6),
    Sketcher.Constraint("Equal", 6, 7),
    Sketcher.Constraint("Equal", 7, 8),
    Sketcher.Constraint("Equal", 0, 9),
    Sketcher.Constraint("Equal", 9, 18),
    Sketcher.Constraint("Equal", 18, 22),
    Sketcher.Constraint("Equal", 17, 23),
    Sketcher.Constraint("Equal", 23, 27),
    Sketcher.Constraint("Equal", 22, 28),
    Sketcher.Constraint("Equal", 28, 32),
    Sketcher.Constraint("Equal", 27, 33),
    Sketcher.Constraint("Symmetric", 1, 3, 5, 3, -1, 1),
    Sketcher.Constraint("Symmetric", 2, 3, 6, 3, -1, 1),
    Sketcher.Constraint("Symmetric", 3, 3, 7, 3, -1, 1),
    Sketcher.Constraint("Symmetric", 4, 3, 8, 3, -1, 1),
    Sketcher.Constraint("Symmetric", 0, 3, 9, 3, -1, 1),
    Sketcher.Constraint("Symmetric", 18, 1, 28, 1, -1, 1),
    Sketcher.Constraint("Symmetric", 20, 2, 30, 2, -1, 1),
    Sketcher.Constraint("Symmetric", 21, 2, 31, 2, -1, 1),
    Sketcher.Constraint("Symmetric", 24, 2, 34, 2, -1, 1),
    Sketcher.Constraint("Symmetric", 11, 2, 36, 2, -1, 1),
    Sketcher.Constraint("Symmetric", 12, 2, 37, 2, -1, 1),
    Sketcher.Constraint("Symmetric", 14, 2, 39, 2, -1, 1),
    Sketcher.Constraint("Symmetric", 13, 2, 41, 2, -1, 1),
    Sketcher.Constraint("Symmetric", 4, 3, 5, 3, -2),
    Sketcher.Constraint("Symmetric", 3, 3, 6, 3, -2),
    Sketcher.Constraint("Symmetric", 21, 2, 28, 1, -2),
    Sketcher.Constraint("Symmetric", 24, 2, 30, 2, -2),
    Sketcher.Constraint("Symmetric", 14, 2, 36, 2, -2),
    Sketcher.Constraint("Symmetric", 13, 2, 37, 2, -2),
    Sketcher.Constraint("PointOnObject", 0, 3, -1),
    Sketcher.Constraint("Perpendicular", 12, 14),
    Sketcher.Constraint("Perpendicular", 14, 16),
    Sketcher.Constraint("Parallel", 16, 19),
    Sketcher.Constraint("Perpendicular", 19, 20),
    Sketcher.Constraint("Parallel", 21, 24),
    Sketcher.Constraint("Perpendicular", 24, 25),
    Sketcher.Constraint("Parallel", 25, 26),
    Sketcher.Constraint("Perpendicular", 29, 30),
    Sketcher.Constraint("Parallel", 31, 34),
    Sketcher.Constraint("Perpendicular", 34, 35),
    Sketcher.Constraint("Horizontal", 1, 3, 2, 3),
    Sketcher.Constraint("Diameter", 0, 20.0),
    Sketcher.Constraint("Diameter", 1, 3.0),
    Sketcher.Constraint("Radius", 17, 42.0),
    Sketcher.Constraint("Distance", 20, 16.0),
    Sketcher.Constraint("DistanceX", 11, 1, 11, 2, 7.9),
    Sketcher.Constraint("DistanceX", 11, 2, -1, 1, 54.0),
    Sketcher.Constraint("DistanceX", 0, 3, -1, 1, 55.4),
    Sketcher.Constraint("DistanceY", 1, 3, -1, 1, 13.4),
    Sketcher.Constraint("DistanceY", 10, 2, -1, 1, 24.9),
    Sketcher.Constraint("DistanceX", 1, 3, 2, 3, 24.5),
    Sketcher.Constraint("DistanceX", 3, 3, 5, 3, 110.8),
    Sketcher.Constraint("DistanceX", 21, 2, 22, 1, 0.641001),
    Sketcher.Constraint("DistanceX", 19, 2, 16, 2, 0.988701),
])
pocket3 = body.newObject("PartDesign::Pocket", "Pocket002")
pocket3.Profile = sketch4
pocket3.Type = "ThroughAll"
pocket3.Reversed = True

# Sketch on XZ plane
sketch5 = body.newObject("Sketcher::SketchObject", "Sketch004")
sketch5.AttachmentSupport = (doc.getObject("XZ_Plane"), [""])
sketch5.MapMode = "FlatFace"
sketch5.AttachmentOffset = App.Placement(V(0, 0, -0.7), App.Rotation())
sketch5.addGeometry([
    Part.Circle(V(0, 0, 0), V(0, 0, 1), 7),  # 0
    Part.Circle(V(15.202796, -15.202796, 0), V(0, 0, 1), 1.5),  # 1
    Part.Circle(V(0, -31.75, 0), V(0, 0, 1), 1.5),  # 2
    Part.Circle(V(22.45064, -22.45064, 0), V(0, 0, 1), 1.5),  # 3
    Part.Circle(V(31.75, 0, 0), V(0, 0, 1), 1.5),  # 4
    Part.Circle(V(22.45064, 22.45064, 0), V(0, 0, 1), 1.5),  # 5
    Part.Circle(V(0, 31.75, 0), V(0, 0, 1), 1.5),  # 6
    Part.Circle(V(-22.45064, 22.45064, 0), V(0, 0, 1), 1.5),  # 7
    Part.Circle(V(-31.75, 0, 0), V(0, 0, 1), 1.5),  # 8
    Part.Circle(V(-22.45064, -22.45064, 0), V(0, 0, 1), 1.5),  # 9
    Part.Circle(V(15.202796, 15.202796, 0), V(0, 0, 1), 1.5),  # 10
    Part.Circle(V(-15.202796, 15.202796, 0), V(0, 0, 1), 1.5),  # 11
    Part.Circle(V(-15.202796, -15.202796, 0), V(0, 0, 1), 1.5),  # 12
    Part.LineSegment(V(-17.40172, -24.437269, 0), V(-4.974885, -12.010434, 0)),  # 13
    Part.LineSegment(V(-4.974885, -12.010434, 0), V(-4.974885, -29.584633, 0)),  # 14
    Part.ArcOfCircle(Part.Circle(V(0, 0, 0), V(0, 0, 1), 30), math.radians(-125.454576), math.radians(-99.545424)),  # 15
    Part.LineSegment(V(4.974885, -29.584633, 0), V(4.974885, -12.010434, 0)),  # 16
    Part.LineSegment(V(4.974885, -12.010434, 0), V(17.40172, -24.437269, 0)),  # 17
    Part.ArcOfCircle(Part.Circle(V(0, 0, 0), V(0, 0, 1), 30), math.radians(-80.454576), math.radians(-54.545424)),  # 18
    Part.LineSegment(V(24.437269, -17.40172, 0), V(12.010434, -4.974885, 0)),  # 19
    Part.LineSegment(V(12.010434, -4.974885, 0), V(29.584633, -4.974885, 0)),  # 20
    Part.ArcOfCircle(Part.Circle(V(0, 0, 0), V(0, 0, 1), 30), math.radians(-35.454576), math.radians(-9.545424)),  # 21
    Part.LineSegment(V(29.584633, 4.974885, 0), V(12.010434, 4.974885, 0)),  # 22
    Part.LineSegment(V(12.010434, 4.974885, 0), V(24.437269, 17.40172, 0)),  # 23
    Part.ArcOfCircle(Part.Circle(V(0, 0, 0), V(0, 0, 1), 30), math.radians(9.545424), math.radians(35.454576)),  # 24
    Part.LineSegment(V(17.40172, 24.437269, 0), V(4.974885, 12.010434, 0)),  # 25
    Part.LineSegment(V(4.974885, 12.010434, 0), V(4.974885, 29.584633, 0)),  # 26
    Part.ArcOfCircle(Part.Circle(V(0, 0, 0), V(0, 0, 1), 30), math.radians(54.545424), math.radians(80.454576)),  # 27
    Part.LineSegment(V(-4.974885, 29.584633, 0), V(-4.974885, 12.010434, 0)),  # 28
    Part.LineSegment(V(-4.974885, 12.010434, 0), V(-17.40172, 24.437269, 0)),  # 29
    Part.ArcOfCircle(Part.Circle(V(0, 0, 0), V(0, 0, 1), 30), math.radians(99.545424), math.radians(125.454576)),  # 30
    Part.LineSegment(V(-24.437269, 17.40172, 0), V(-12.010434, 4.974885, 0)),  # 31
    Part.LineSegment(V(-12.010434, 4.974885, 0), V(-29.584633, 4.974885, 0)),  # 32
    Part.ArcOfCircle(Part.Circle(V(0, 0, 0), V(0, 0, 1), 30), math.radians(144.545424), math.radians(170.454576)),  # 33
    Part.LineSegment(V(-29.584633, -4.974885, 0), V(-12.010434, -4.974885, 0)),  # 34
    Part.LineSegment(V(-12.010434, -4.974885, 0), V(-24.437269, -17.40172, 0)),  # 35
    Part.ArcOfCircle(Part.Circle(V(0, 0, 0), V(0, 0, 1), 30), math.radians(-170.454576), math.radians(-144.545424)),  # 36
], False)
sketch5.addConstraint([
    Sketcher.Constraint("Coincident", 13, 2, 14, 1),
    Sketcher.Constraint("Coincident", 14, 2, 15, 2),
    Sketcher.Constraint("Coincident", 15, 1, 13, 1),
    Sketcher.Constraint("Coincident", 16, 2, 17, 1),
    Sketcher.Constraint("Coincident", 17, 2, 18, 2),
    Sketcher.Constraint("Coincident", 18, 1, 16, 1),
    Sketcher.Constraint("Coincident", 19, 2, 20, 1),
    Sketcher.Constraint("Coincident", 20, 2, 21, 2),
    Sketcher.Constraint("Coincident", 21, 1, 19, 1),
    Sketcher.Constraint("Coincident", 22, 2, 23, 1),
    Sketcher.Constraint("Coincident", 23, 2, 24, 2),
    Sketcher.Constraint("Coincident", 24, 1, 22, 1),
    Sketcher.Constraint("Coincident", 25, 2, 26, 1),
    Sketcher.Constraint("Coincident", 26, 2, 27, 2),
    Sketcher.Constraint("Coincident", 27, 1, 25, 1),
    Sketcher.Constraint("Coincident", 28, 2, 29, 1),
    Sketcher.Constraint("Coincident", 29, 2, 30, 2),
    Sketcher.Constraint("Coincident", 30, 1, 28, 1),
    Sketcher.Constraint("Coincident", 31, 2, 32, 1),
    Sketcher.Constraint("Coincident", 32, 2, 33, 2),
    Sketcher.Constraint("Coincident", 33, 1, 31, 1),
    Sketcher.Constraint("Coincident", 34, 2, 35, 1),
    Sketcher.Constraint("Coincident", 35, 2, 36, 2),
    Sketcher.Constraint("Coincident", 36, 1, 34, 1),
    Sketcher.Constraint("Vertical", 14),
    Sketcher.Constraint("Vertical", 16),
    Sketcher.Constraint("Horizontal", 20),
    Sketcher.Constraint("Horizontal", 22),
    Sketcher.Constraint("Vertical", 26),
    Sketcher.Constraint("Vertical", 28),
    Sketcher.Constraint("Horizontal", 32),
    Sketcher.Constraint("Horizontal", 34),
    Sketcher.Constraint("Coincident", 0, 3, -1, 1),
    Sketcher.Constraint("Coincident", 15, 3, -1, 1),
    Sketcher.Constraint("Coincident", 18, 3, -1, 1),
    Sketcher.Constraint("Coincident", 21, 3, -1, 1),
    Sketcher.Constraint("Coincident", 24, 3, -1, 1),
    Sketcher.Constraint("Coincident", 27, 3, -1, 1),
    Sketcher.Constraint("Coincident", 30, 3, -1, 1),
    Sketcher.Constraint("Coincident", 33, 3, -1, 1),
    Sketcher.Constraint("Coincident", 36, 3, -1, 1),
    Sketcher.Constraint("Equal", 1, 2),
    Sketcher.Constraint("Equal", 2, 3),
    Sketcher.Constraint("Equal", 3, 4),
    Sketcher.Constraint("Equal", 4, 5),
    Sketcher.Constraint("Equal", 5, 6),
    Sketcher.Constraint("Equal", 6, 7),
    Sketcher.Constraint("Equal", 7, 8),
    Sketcher.Constraint("Equal", 8, 9),
    Sketcher.Constraint("Equal", 9, 10),
    Sketcher.Constraint("Equal", 10, 11),
    Sketcher.Constraint("Equal", 11, 12),
    Sketcher.Constraint("Equal", 15, 18),
    Sketcher.Constraint("Equal", 18, 21),
    Sketcher.Constraint("Equal", 21, 24),
    Sketcher.Constraint("Equal", 24, 27),
    Sketcher.Constraint("Equal", 27, 30),
    Sketcher.Constraint("Equal", 30, 33),
    Sketcher.Constraint("Equal", 33, 36),
    Sketcher.Constraint("Symmetric", 2, 3, 6, 3, -1, 1),
    Sketcher.Constraint("Symmetric", 3, 3, 7, 3, -1, 1),
    Sketcher.Constraint("Symmetric", 4, 3, 8, 3, -1, 1),
    Sketcher.Constraint("Symmetric", 5, 3, 9, 3, -1, 1),
    Sketcher.Constraint("Symmetric", 1, 3, 11, 3, -1, 1),
    Sketcher.Constraint("Symmetric", 10, 3, 12, 3, -1, 1),
    Sketcher.Constraint("Symmetric", 13, 2, 25, 2, -1, 1),
    Sketcher.Constraint("Symmetric", 16, 2, 28, 2, -1, 1),
    Sketcher.Constraint("Symmetric", 19, 2, 31, 2, -1, 1),
    Sketcher.Constraint("Symmetric", 22, 2, 34, 2, -1, 1),
    Sketcher.Constraint("Symmetric", 5, 3, 7, 3, -2),
    Sketcher.Constraint("Symmetric", 10, 3, 11, 3, -2),
    Sketcher.Constraint("Symmetric", 13, 2, 16, 2, -2),
    Sketcher.Constraint("Symmetric", 22, 2, 31, 2, -2),
    Sketcher.Constraint("PointOnObject", 2, 3, -2),
    Sketcher.Constraint("PointOnObject", 4, 3, -1),
    Sketcher.Constraint("Perpendicular", 13, 17),
    Sketcher.Constraint("Parallel", 17, 19),
    Sketcher.Constraint("Perpendicular", 19, 23),
    Sketcher.Constraint("Parallel", 23, 25),
    Sketcher.Constraint("Perpendicular", 25, 29),
    Sketcher.Constraint("Parallel", 29, 31),
    Sketcher.Constraint("Perpendicular", 31, 35),
    Sketcher.Constraint("Horizontal", 15, 1, 17, 2),
    Sketcher.Constraint("Equal", 34, 14),
    Sketcher.Constraint("Equal", 17, 19),
    Sketcher.Constraint("Diameter", 0, 14.0),
    Sketcher.Constraint("Diameter", 1, 3.0),
    Sketcher.Constraint("Radius", 15, 30.0),
    Sketcher.Constraint("DistanceY", 2, 3, -1, 1, 31.75),
    Sketcher.Constraint("DistanceX", -1, 1, 4, 3, 31.75),
    Sketcher.Constraint("DistanceX", 20, 1, 20, 2, 17.574199),
    Sketcher.Constraint("Distance", 13, 17.574199),
    Sketcher.Constraint("DistanceX", -1, 1, 3, 3, 22.45064),
    Sketcher.Constraint("DistanceY", 3, 3, -1, 1, 22.45064),
    Sketcher.Constraint("DistanceY", 1, 3, 10, 3, 30.405592),
    Sketcher.Constraint("DistanceX", 11, 3, 10, 3, 30.405592),
])
pocket4 = body.newObject("PartDesign::Pocket", "Pocket003")
pocket4.Profile = sketch5
pocket4.Type = "ThroughAll"
pocket4.Reversed = True

doc.recompute()
